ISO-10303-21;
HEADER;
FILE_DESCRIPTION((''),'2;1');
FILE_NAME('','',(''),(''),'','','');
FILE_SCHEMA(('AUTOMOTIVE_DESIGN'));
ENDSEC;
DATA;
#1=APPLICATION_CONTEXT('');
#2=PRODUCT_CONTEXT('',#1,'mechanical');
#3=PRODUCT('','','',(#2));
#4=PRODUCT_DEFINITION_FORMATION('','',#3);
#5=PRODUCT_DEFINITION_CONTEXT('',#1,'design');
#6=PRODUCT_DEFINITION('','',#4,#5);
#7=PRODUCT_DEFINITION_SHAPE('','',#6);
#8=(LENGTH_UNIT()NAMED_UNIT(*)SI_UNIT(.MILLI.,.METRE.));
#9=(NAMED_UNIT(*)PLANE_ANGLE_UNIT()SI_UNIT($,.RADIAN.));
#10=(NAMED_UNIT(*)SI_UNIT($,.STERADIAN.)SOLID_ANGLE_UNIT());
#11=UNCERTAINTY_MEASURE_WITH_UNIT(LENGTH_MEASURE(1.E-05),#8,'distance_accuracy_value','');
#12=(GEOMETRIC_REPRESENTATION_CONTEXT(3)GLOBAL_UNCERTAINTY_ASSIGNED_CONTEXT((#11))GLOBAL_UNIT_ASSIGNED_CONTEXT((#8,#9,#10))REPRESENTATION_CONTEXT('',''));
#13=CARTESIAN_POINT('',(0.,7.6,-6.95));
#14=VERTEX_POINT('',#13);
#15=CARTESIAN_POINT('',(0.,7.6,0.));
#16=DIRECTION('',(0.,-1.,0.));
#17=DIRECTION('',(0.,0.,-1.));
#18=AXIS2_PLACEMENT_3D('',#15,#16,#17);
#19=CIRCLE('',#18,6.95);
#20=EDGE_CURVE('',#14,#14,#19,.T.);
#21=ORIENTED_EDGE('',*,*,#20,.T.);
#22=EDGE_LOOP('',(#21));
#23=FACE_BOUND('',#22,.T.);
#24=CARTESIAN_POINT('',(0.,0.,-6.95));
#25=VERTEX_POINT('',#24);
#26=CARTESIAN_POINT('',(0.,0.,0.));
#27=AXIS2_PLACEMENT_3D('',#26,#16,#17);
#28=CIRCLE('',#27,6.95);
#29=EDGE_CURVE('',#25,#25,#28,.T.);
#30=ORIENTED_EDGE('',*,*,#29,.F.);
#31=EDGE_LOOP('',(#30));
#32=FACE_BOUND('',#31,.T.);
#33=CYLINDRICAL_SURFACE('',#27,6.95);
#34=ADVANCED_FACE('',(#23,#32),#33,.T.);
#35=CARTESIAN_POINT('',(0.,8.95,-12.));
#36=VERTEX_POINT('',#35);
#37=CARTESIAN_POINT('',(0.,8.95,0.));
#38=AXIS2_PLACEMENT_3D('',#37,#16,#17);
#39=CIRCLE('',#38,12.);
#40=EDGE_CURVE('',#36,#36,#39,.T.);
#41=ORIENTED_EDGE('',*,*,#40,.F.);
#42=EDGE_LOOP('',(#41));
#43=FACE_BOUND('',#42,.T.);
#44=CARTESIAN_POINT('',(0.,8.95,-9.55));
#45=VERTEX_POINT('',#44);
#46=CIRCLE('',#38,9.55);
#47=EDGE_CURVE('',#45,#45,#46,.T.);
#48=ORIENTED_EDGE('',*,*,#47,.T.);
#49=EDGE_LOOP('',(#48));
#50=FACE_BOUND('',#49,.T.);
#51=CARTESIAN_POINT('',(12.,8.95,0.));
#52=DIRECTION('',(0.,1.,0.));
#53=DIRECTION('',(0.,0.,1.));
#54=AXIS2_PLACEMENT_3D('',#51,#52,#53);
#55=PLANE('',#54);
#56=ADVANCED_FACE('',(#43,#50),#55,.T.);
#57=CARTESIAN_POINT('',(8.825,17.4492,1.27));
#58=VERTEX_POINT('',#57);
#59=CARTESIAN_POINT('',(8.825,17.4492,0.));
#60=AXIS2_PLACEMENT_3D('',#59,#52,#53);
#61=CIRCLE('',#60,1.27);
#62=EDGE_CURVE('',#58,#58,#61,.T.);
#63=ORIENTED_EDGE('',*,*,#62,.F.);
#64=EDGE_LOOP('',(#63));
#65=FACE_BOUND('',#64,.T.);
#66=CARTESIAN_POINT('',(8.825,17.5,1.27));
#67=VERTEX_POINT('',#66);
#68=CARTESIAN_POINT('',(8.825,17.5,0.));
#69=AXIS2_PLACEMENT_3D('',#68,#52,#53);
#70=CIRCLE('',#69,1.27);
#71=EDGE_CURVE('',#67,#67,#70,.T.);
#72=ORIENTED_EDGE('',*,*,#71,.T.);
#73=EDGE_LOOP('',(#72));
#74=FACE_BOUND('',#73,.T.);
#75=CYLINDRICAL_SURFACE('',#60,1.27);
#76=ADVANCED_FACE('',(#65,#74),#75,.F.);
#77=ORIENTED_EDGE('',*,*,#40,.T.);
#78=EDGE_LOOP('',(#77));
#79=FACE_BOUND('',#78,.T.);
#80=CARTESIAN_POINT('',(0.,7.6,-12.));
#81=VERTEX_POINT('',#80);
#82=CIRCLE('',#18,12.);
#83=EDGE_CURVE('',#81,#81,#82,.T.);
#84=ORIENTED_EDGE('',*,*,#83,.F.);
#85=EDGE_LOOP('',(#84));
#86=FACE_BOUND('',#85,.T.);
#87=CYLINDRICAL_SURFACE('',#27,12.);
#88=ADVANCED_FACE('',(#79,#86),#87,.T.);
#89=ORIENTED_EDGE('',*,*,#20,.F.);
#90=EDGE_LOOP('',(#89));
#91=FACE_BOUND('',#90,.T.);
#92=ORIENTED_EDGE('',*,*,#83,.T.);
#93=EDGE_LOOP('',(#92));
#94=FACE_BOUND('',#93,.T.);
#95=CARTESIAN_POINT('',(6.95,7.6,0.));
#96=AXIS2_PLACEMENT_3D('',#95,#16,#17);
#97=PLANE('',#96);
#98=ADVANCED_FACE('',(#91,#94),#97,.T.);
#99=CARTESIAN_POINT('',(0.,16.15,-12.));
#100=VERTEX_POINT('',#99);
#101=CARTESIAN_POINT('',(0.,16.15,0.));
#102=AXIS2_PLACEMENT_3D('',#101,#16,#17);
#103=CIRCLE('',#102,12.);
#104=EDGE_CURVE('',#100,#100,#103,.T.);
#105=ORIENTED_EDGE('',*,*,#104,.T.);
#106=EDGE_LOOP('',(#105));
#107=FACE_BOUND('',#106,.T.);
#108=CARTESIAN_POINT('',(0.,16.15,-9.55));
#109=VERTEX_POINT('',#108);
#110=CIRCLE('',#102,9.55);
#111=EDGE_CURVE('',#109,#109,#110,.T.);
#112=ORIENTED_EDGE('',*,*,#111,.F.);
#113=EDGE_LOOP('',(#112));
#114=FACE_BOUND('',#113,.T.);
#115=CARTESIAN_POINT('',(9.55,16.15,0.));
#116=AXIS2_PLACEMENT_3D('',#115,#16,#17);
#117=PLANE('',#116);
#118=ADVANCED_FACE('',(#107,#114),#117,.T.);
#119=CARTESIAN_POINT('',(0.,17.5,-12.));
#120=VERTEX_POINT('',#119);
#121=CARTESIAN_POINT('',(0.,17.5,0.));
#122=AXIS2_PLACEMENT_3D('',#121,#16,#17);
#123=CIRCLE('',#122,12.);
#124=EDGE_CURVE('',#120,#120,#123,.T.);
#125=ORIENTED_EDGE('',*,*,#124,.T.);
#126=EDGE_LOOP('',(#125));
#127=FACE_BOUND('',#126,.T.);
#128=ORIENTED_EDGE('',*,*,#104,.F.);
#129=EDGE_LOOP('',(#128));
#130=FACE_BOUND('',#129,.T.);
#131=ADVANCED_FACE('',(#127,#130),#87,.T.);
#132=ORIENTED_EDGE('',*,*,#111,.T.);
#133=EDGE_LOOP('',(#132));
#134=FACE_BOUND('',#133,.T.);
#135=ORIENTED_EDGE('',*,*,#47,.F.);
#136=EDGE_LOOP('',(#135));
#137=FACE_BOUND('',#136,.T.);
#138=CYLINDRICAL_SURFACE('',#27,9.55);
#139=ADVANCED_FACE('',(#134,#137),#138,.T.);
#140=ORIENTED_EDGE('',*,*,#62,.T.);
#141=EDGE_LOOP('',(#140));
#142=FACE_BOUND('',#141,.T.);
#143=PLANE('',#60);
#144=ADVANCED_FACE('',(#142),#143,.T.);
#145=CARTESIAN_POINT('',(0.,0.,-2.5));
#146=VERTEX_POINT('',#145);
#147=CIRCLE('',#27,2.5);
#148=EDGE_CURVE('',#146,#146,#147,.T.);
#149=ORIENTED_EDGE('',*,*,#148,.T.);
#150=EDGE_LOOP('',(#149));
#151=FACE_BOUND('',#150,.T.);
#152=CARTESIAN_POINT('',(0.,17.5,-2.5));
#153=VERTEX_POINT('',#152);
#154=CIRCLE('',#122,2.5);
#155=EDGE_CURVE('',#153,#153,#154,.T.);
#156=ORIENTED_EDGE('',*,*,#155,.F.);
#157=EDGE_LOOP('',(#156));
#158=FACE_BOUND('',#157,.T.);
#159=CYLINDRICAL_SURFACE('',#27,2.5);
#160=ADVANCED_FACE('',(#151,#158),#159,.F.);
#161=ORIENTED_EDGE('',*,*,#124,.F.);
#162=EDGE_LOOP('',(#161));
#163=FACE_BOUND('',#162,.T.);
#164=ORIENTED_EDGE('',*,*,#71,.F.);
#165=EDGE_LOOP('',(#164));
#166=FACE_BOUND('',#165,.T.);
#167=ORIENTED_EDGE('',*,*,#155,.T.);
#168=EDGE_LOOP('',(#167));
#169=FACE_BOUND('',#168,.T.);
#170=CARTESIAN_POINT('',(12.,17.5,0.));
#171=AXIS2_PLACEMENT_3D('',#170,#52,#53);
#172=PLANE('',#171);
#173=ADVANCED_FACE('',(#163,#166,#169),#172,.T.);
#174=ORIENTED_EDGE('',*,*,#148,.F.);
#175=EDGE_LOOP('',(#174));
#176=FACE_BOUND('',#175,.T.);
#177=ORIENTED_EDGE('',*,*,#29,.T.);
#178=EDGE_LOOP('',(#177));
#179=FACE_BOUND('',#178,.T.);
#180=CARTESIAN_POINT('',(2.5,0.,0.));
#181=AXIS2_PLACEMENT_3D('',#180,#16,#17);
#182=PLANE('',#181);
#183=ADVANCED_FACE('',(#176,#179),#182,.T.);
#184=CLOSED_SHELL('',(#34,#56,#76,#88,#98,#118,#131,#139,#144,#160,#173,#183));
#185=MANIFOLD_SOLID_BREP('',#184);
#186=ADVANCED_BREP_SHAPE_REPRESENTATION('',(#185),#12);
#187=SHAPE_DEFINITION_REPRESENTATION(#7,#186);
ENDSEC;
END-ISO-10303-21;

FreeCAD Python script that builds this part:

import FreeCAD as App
import Part
import Sketcher


def add_polygon(sketch, points):
    """Adds a closed chain of lines whose ends are joined by coincident constraints."""
    first, n = sketch.GeometryCount, len(points)
    for a, b in zip(points, points[1:] + points[:1]):
        sketch.addGeometry(Part.LineSegment(App.Vector(*a, 0), App.Vector(*b, 0)), False)
    for i in range(n):
        sketch.addConstraint(Sketcher.Constraint("Coincident", first + i, 2, first + (i + 1) % n, 1))

doc = App.newDocument("Part")
body = doc.addObject("PartDesign::Body", "Body")

sketch1 = doc.addObject("Sketcher::SketchObject", "Sketch")
body.addObject(sketch1)
sketch1.AttachmentSupport = (doc.XY_Plane, [""])
sketch1.MapMode = "FlatFace"
add_polygon(sketch1, [(2.5, 17.5), (2.5, 0), (7, 0), (7, 7.6), (12, 7.6), (12, 8.9), (9.6, 8.9), (9.6, 16.1), (12, 16.1), (12, 17.5)])
sketch1.addConstraint([
    Sketcher.Constraint("Vertical", 0),
    Sketcher.Constraint("Horizontal", 1),
    Sketcher.Constraint("Vertical", 2),
    Sketcher.Constraint("Horizontal", 3),
    Sketcher.Constraint("Vertical", 4),
    Sketcher.Constraint("Horizontal", 5),
    Sketcher.Constraint("Vertical", 6),
    Sketcher.Constraint("Horizontal", 7),
    Sketcher.Constraint("Vertical", 8),
    Sketcher.Constraint("Horizontal", 9),
    Sketcher.Constraint("PointOnObject", 0, 2, -1),
    Sketcher.Constraint("Vertical", 4, 2, 7, 2),
    Sketcher.Constraint("Equal", 4, 8),
    Sketcher.Constraint("DistanceX", 9, 2, 9, 1, 9.5),
    Sketcher.Constraint("DistanceY", 0, 2, 0, 1, 17.5),
    Sketcher.Constraint("DistanceY", 2, 1, 2, 2, 7.6),
    Sketcher.Constraint("DistanceY", 6, 1, 6, 2, 7.2),
    Sketcher.Constraint("DistanceX", -1, 1, 3, 2, 12.0),
    Sketcher.Constraint("DistanceX", 1, 1, 1, 2, 4.45),
    Sketcher.Constraint("DistanceX", 5, 2, 5, 1, 2.45),
])
revolution = doc.addObject("PartDesign::Revolution", "Revolution")
body.addObject(revolution)
revolution.Profile = sketch1
revolution.ReferenceAxis = (sketch1, ["V_Axis"])
revolution.Angle = 360

sketch2 = doc.addObject("Sketcher::SketchObject", "Sketch001")
body.addObject(sketch2)
sketch2.AttachmentSupport = (doc.XZ_Plane, [""])
sketch2.MapMode = "FlatFace"
sketch2.AttachmentOffset = App.Placement(App.Vector(0, 0, -17.5), App.Rotation())
sketch2.addGeometry(Part.Circle(App.Vector(8.8, 0, 0), App.Vector(0, 0, 1), 1.3), False)
sketch2.addConstraint([
    Sketcher.Constraint("PointOnObject", 0, 3, -1),
    Sketcher.Constraint("Diameter", 0, 2.54),
    Sketcher.Constraint("DistanceX", -1, 1, 0, 3, 8.825),
])
pocket1 = doc.addObject("PartDesign::Pocket", "Pocket")
body.addObject(pocket1)
pocket1.Profile = sketch2
pocket1.Length = 0.0508
pocket1.Reversed = True

doc.recompute()
